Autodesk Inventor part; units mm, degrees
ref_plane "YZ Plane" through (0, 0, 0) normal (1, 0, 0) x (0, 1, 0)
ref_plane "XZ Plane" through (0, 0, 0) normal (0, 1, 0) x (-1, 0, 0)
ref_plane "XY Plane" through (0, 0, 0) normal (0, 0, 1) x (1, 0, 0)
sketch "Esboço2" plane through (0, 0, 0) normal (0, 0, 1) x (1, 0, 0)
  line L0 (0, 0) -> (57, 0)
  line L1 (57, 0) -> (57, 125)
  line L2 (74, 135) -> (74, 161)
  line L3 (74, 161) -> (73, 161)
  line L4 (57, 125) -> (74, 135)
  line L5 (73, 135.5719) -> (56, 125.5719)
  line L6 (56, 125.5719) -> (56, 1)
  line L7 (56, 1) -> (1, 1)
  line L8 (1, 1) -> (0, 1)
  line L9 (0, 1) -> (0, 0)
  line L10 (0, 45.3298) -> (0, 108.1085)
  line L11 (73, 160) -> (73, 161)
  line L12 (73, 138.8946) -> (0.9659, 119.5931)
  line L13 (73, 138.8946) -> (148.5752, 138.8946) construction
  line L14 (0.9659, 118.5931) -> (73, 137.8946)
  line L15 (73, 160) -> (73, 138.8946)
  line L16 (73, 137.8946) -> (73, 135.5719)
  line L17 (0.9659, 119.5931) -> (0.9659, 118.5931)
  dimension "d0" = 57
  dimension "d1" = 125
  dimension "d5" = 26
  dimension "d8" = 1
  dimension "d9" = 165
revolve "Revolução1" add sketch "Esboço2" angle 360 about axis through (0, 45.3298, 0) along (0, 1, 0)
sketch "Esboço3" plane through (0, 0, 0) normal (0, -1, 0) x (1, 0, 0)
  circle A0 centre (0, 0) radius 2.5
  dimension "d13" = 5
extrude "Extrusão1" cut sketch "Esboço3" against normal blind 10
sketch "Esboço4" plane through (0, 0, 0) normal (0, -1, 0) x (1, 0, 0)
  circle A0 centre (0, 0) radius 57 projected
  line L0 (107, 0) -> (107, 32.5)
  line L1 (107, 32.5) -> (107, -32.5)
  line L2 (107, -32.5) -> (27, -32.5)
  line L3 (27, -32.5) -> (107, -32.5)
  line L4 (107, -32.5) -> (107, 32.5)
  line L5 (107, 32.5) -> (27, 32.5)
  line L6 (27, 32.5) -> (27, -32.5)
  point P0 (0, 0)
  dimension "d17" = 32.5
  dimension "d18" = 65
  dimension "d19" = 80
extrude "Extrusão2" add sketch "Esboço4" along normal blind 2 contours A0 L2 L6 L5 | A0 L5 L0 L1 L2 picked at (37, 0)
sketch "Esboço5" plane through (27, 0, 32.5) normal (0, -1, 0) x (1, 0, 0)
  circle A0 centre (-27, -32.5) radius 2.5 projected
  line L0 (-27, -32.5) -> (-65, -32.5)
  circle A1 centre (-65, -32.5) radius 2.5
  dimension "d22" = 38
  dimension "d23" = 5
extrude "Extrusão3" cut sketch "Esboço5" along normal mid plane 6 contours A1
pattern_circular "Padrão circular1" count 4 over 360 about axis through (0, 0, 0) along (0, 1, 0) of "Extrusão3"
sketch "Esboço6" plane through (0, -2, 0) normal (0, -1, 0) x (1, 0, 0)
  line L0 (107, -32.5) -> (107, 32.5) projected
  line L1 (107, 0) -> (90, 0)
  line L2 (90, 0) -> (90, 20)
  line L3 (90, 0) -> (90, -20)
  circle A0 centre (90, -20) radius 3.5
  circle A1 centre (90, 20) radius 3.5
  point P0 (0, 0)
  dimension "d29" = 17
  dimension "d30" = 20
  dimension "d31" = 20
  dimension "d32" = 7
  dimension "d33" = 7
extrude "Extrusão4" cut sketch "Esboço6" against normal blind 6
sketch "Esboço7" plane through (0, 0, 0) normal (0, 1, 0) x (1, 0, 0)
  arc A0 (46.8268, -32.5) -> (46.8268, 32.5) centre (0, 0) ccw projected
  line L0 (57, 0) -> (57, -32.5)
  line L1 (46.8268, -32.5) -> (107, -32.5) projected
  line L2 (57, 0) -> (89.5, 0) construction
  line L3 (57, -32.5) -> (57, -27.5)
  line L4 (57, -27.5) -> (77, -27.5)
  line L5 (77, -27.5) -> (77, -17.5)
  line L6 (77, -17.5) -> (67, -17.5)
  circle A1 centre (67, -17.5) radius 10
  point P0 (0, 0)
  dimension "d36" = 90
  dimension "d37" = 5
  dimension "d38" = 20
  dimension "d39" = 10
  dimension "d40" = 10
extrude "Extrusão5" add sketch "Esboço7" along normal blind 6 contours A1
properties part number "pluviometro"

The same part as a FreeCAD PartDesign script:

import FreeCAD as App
import Part
import Sketcher
from FreeCAD import Vector
Q = App.Units.Quantity

doc = App.newDocument("Part")
body = doc.addObject("PartDesign::Body", "Body")

# Sketch on XY plane
sketch1 = doc.addObject("Sketcher::SketchObject", "Sketch")
body.addObject(sketch1)
sketch1.AttachmentSupport = (doc.XY_Plane, [""])
sketch1.MapMode = "FlatFace"
sketch1.addGeometry(Part.LineSegment(Vector(0, 1, 0), Vector(0, 0, 0)), False)
sketch1.addGeometry(Part.LineSegment(Vector(0, 0, 0), Vector(57, 0, 0)), False)
sketch1.addGeometry(Part.LineSegment(Vector(57, 0, 0), Vector(57, 125, 0)), False)
sketch1.addGeometry(Part.LineSegment(Vector(57, 125, 0), Vector(74, 135, 0)), False)
sketch1.addGeometry(Part.LineSegment(Vector(74, 135, 0), Vector(74, 161, 0)), False)
sketch1.addGeometry(Part.LineSegment(Vector(74, 161, 0), Vector(73, 161, 0)), False)
sketch1.addGeometry(Part.LineSegment(Vector(73, 161, 0), Vector(73, 138.9, 0)), False)
sketch1.addGeometry(Part.LineSegment(Vector(73, 138.9, 0), Vector(1, 119.6, 0)), False)
sketch1.addGeometry(Part.LineSegment(Vector(1, 119.6, 0), Vector(1, 118.6, 0)), False)
sketch1.addGeometry(Part.LineSegment(Vector(1, 118.6, 0), Vector(73, 137.9, 0)), False)
sketch1.addGeometry(Part.LineSegment(Vector(73, 137.9, 0), Vector(73, 135.6, 0)), False)
sketch1.addGeometry(Part.LineSegment(Vector(73, 135.6, 0), Vector(56, 125.6, 0)), False)
sketch1.addGeometry(Part.LineSegment(Vector(56, 125.6, 0), Vector(56, 1, 0)), False)
sketch1.addGeometry(Part.LineSegment(Vector(56, 1, 0), Vector(0, 1, 0)), False)
sketch1.addConstraint(Sketcher.Constraint("Coincident", 0, 2, 1, 1))
sketch1.addConstraint(Sketcher.Constraint("Coincident", 1, 2, 2, 1))
sketch1.addConstraint(Sketcher.Constraint("Coincident", 2, 2, 3, 1))
sketch1.addConstraint(Sketcher.Constraint("Coincident", 3, 2, 4, 1))
sketch1.addConstraint(Sketcher.Constraint("Coincident", 4, 2, 5, 1))
sketch1.addConstraint(Sketcher.Constraint("Coincident", 5, 2, 6, 1))
sketch1.addConstraint(Sketcher.Constraint("Coincident", 6, 2, 7, 1))
sketch1.addConstraint(Sketcher.Constraint("Coincident", 7, 2, 8, 1))
sketch1.addConstraint(Sketcher.Constraint("Coincident", 8, 2, 9, 1))
sketch1.addConstraint(Sketcher.Constraint("Coincident", 9, 2, 10, 1))
sketch1.addConstraint(Sketcher.Constraint("Coincident", 10, 2, 11, 1))
sketch1.addConstraint(Sketcher.Constraint("Coincident", 11, 2, 12, 1))
sketch1.addConstraint(Sketcher.Constraint("Coincident", 12, 2, 13, 1))
sketch1.addConstraint(Sketcher.Constraint("Coincident", 13, 2, 0, 1))
sketch1.addConstraint(Sketcher.Constraint("Vertical", 0))
sketch1.addConstraint(Sketcher.Constraint("Horizontal", 1))
sketch1.addConstraint(Sketcher.Constraint("Vertical", 2))
sketch1.addConstraint(Sketcher.Constraint("Vertical", 4))
sketch1.addConstraint(Sketcher.Constraint("Horizontal", 5))
sketch1.addConstraint(Sketcher.Constraint("Vertical", 6))
sketch1.addConstraint(Sketcher.Constraint("Vertical", 8))
sketch1.addConstraint(Sketcher.Constraint("Vertical", 10))
sketch1.addConstraint(Sketcher.Constraint("Vertical", 12))
sketch1.addConstraint(Sketcher.Constraint("Horizontal", 13))
sketch1.addConstraint(Sketcher.Constraint("Coincident", 0, 2, -1, 1))
sketch1.addConstraint(Sketcher.Constraint("Parallel", 7, 9))
sketch1.addConstraint(Sketcher.Constraint("Parallel", 3, 11))
sketch1.addConstraint(Sketcher.Constraint("Vertical", 6, 2, 9, 2))
sketch1.addConstraint(Sketcher.Constraint("Equal", 5, 0))
sketch1.addConstraint(Sketcher.Constraint("Equal", 0, 8))
sketch1.addConstraint(Sketcher.Constraint("Equal", 3, 11))
sketch1.addConstraint(Sketcher.Constraint("DistanceX", 1, 1, 1, 2, 57.0))
sketch1.addConstraint(Sketcher.Constraint("DistanceX", 5, 2, 5, 1, 1.0))
sketch1.addConstraint(Sketcher.Constraint("DistanceY", 2, 1, 2, 2, 125.0))
sketch1.addConstraint(Sketcher.Constraint("DistanceY", 4, 1, 4, 2, 26.0))
sketch1.addConstraint(Sketcher.Constraint("Angle", 7, Q("-165 deg")))
sketch1.addConstraint(Sketcher.Constraint("DistanceX", -1, 1, 3, 2, 74.0))
sketch1.addConstraint(Sketcher.Constraint("DistanceY", -1, 1, 3, 2, 135.0))
sketch1.addConstraint(Sketcher.Constraint("DistanceY", 12, 2, 12, 1, 124.572))
sketch1.addConstraint(Sketcher.Constraint("DistanceY", 6, 2, 6, 1, 22.1054))
sketch1.addConstraint(Sketcher.Constraint("DistanceX", -1, 1, 7, 2, 0.966))
revolution = doc.addObject("PartDesign::Revolution", "Revolution")
body.addObject(revolution)
revolution.Profile = sketch1
revolution.ReferenceAxis = (sketch1, ["V_Axis"])
revolution.Angle = 360

# Sketch on XZ plane
sketch2 = doc.addObject("Sketcher::SketchObject", "Sketch001")
body.addObject(sketch2)
sketch2.AttachmentSupport = (doc.XZ_Plane, [""])
sketch2.MapMode = "FlatFace"
sketch2.addGeometry(Part.Circle(Vector(0, 0, 0), Vector(0, 0, 1), 2.5), False)
sketch2.addConstraint(Sketcher.Constraint("Coincident", 0, 3, -1, 1))
sketch2.addConstraint(Sketcher.Constraint("Diameter", 0, 5.0))
pocket1 = doc.addObject("PartDesign::Pocket", "Pocket")
body.addObject(pocket1)
pocket1.Profile = sketch2
pocket1.Length = 10

# Sketch on XZ plane
sketch3 = doc.addObject("Sketcher::SketchObject", "Sketch002")
body.addObject(sketch3)
sketch3.AttachmentSupport = (doc.XZ_Plane, [""])
sketch3.MapMode = "FlatFace"
sketch3.addGeometry(Part.LineSegment(Vector(27, -32, 0), Vector(107, -32, 0)), False)
sketch3.addGeometry(Part.LineSegment(Vector(107, -32, 0), Vector(107, 32, 0)), False)
sketch3.addGeometry(Part.LineSegment(Vector(107, 32, 0), Vector(27, 32, 0)), False)
sketch3.addGeometry(Part.LineSegment(Vector(27, 32, 0), Vector(27, -32, 0)), False)
sketch3.addConstraint(Sketcher.Constraint("Coincident", 0, 2, 1, 1))
sketch3.addConstraint(Sketcher.Constraint("Coincident", 1, 2, 2, 1))
sketch3.addConstraint(Sketcher.Constraint("Coincident", 2, 2, 3, 1))
sketch3.addConstraint(Sketcher.Constraint("Coincident", 3, 2, 0, 1))
sketch3.addConstraint(Sketcher.Constraint("Horizontal", 0))
sketch3.addConstraint(Sketcher.Constraint("Vertical", 1))
sketch3.addConstraint(Sketcher.Constraint("Horizontal", 2))
sketch3.addConstraint(Sketcher.Constraint("Vertical", 3))
sketch3.addConstraint(Sketcher.Constraint("DistanceX", 0, 1, 0, 2, 80.0))
sketch3.addConstraint(Sketcher.Constraint("DistanceY", 1, 1, 1, 2, 65.0))
sketch3.addConstraint(Sketcher.Constraint("DistanceY", 0, 2, -1, 1, 32.5))
sketch3.addConstraint(Sketcher.Constraint("DistanceX", -1, 1, 0, 2, 107.0))
pad1 = doc.addObject("PartDesign::Pad", "Pad")
body.addObject(pad1)
pad1.Profile = sketch3
pad1.Length = 2

# Sketch on XZ plane
sketch4 = doc.addObject("Sketcher::SketchObject", "Sketch003")
body.addObject(sketch4)
sketch4.AttachmentSupport = (doc.XZ_Plane, [""])
sketch4.MapMode = "FlatFace"
sketch4.addGeometry(Part.Circle(Vector(-38, 0, 0), Vector(0, 0, 1), 2.5), False)
sketch4.addConstraint(Sketcher.Constraint("PointOnObject", 0, 3, -1))
sketch4.addConstraint(Sketcher.Constraint("Diameter", 0, 5.0))
sketch4.addConstraint(Sketcher.Constraint("DistanceX", 0, 3, -1, 1, 38.0))
pocket2 = doc.addObject("PartDesign::Pocket", "Pocket001")
body.addObject(pocket2)
pocket2.Profile = sketch4
pocket2.Length = 6
pocket2.Midplane = True
doc.recompute()

polarpattern = doc.addObject("PartDesign::PolarPattern", "PolarPattern")
body.addObject(polarpattern)
polarpattern.Originals = [pocket2]
polarpattern.Axis = (doc.Y_Axis, [""])
polarpattern.Angle = 360
polarpattern.Occurrences = 4
body.Tip = polarpattern

# Sketch on XZ plane
sketch5 = doc.addObject("Sketcher::SketchObject", "Sketch004")
body.addObject(sketch5)
sketch5.AttachmentSupport = (doc.XZ_Plane, [""])
sketch5.MapMode = "FlatFace"
sketch5.AttachmentOffset = App.Placement(Vector(0, 0, 2), App.Rotation())
sketch5.addGeometry(Part.Circle(Vector(90, 20, 0), Vector(0, 0, 1), 3.5), False)
sketch5.addGeometry(Part.Circle(Vector(90, -20, 0), Vector(0, 0, 1), 3.5), False)
sketch5.addConstraint(Sketcher.Constraint("Equal", 0, 1))
sketch5.addConstraint(Sketcher.Constraint("Symmetric", 0, 3, 1, 3, -1))
sketch5.addConstraint(Sketcher.Constraint("Diameter", 0, 7.0))
sketch5.addConstraint(Sketcher.Constraint("DistanceY", -1, 1, 0, 3, 20.0))
sketch5.addConstraint(Sketcher.Constraint("DistanceX", -1, 1, 0, 3, 90.0))
pocket3 = doc.addObject("PartDesign::Pocket", "Pocket002")
body.addObject(pocket3)
pocket3.Profile = sketch5
pocket3.Length = 6

# Sketch on XZ plane
sketch6 = doc.addObject("Sketcher::SketchObject", "Sketch005")
body.addObject(sketch6)
sketch6.AttachmentSupport = (doc.XZ_Plane, [""])
sketch6.MapMode = "FlatFace"
sketch6.addGeometry(Part.Circle(Vector(67, 18, 0), Vector(0, 0, 1), 10), False)
sketch6.addConstraint(Sketcher.Constraint("Diameter", 0, 20.0))
sketch6.addConstraint(Sketcher.Constraint("DistanceX", -1, 1, 0, 3, 67.0))
sketch6.addConstraint(Sketcher.Constraint("DistanceY", -1, 1, 0, 3, 17.5))
pad2 = doc.addObject("PartDesign::Pad", "Pad001")
body.addObject(pad2)
pad2.Profile = sketch6
pad2.Length = 6
pad2.Reversed = True

doc.recompute()
